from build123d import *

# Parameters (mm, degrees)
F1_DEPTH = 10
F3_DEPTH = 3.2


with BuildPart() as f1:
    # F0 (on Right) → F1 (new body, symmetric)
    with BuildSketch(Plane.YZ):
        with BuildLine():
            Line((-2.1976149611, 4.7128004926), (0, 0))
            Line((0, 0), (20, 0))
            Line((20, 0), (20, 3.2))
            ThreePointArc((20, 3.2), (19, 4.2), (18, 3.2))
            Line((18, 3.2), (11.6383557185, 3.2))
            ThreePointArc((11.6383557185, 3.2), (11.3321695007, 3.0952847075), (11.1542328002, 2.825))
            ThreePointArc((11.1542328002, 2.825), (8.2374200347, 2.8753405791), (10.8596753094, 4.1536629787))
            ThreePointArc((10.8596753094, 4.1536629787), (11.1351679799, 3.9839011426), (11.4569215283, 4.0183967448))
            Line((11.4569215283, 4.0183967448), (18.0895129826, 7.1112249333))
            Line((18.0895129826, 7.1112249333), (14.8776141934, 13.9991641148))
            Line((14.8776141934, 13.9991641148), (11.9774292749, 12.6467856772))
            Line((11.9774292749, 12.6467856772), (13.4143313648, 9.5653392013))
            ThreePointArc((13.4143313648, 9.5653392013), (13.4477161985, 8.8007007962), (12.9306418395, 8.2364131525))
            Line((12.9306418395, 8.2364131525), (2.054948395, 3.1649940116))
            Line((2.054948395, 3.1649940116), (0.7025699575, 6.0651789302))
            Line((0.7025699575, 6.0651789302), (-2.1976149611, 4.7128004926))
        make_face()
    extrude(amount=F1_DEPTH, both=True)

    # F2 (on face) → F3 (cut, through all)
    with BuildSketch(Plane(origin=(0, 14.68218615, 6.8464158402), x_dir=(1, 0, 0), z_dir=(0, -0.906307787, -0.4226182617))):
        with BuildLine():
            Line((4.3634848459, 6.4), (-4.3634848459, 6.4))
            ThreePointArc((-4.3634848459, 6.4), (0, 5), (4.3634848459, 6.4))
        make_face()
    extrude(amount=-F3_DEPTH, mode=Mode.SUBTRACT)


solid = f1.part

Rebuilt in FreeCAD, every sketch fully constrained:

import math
import FreeCAD as App
import Part
import Sketcher

V = App.Vector
Q = App.Units.Quantity

doc = App.newDocument("Part")
params = doc.addObject("Spreadsheet::Sheet", "Params")
for row, (alias, value) in enumerate([
    ("sketch1_radius", "1 mm"),
    ("sketch1_radius2", "0.5 mm"),
    ("sketch1_radius3", "1.5 mm"),
    ("sketch1_width", "20 mm"),
    ("sketch1_length", "12 mm"),
    ("pad1_length", "20 mm"),
    ("sketch2_radius", "7.5 mm"),
], start=1):
    params.set(f"A{row}", alias)
    params.set(f"B{row}", "=" + value)
    params.setAlias(f"B{row}", alias)

body = doc.addObject("PartDesign::Body", "Body")

sketch1 = body.newObject("Sketcher::SketchObject", "Sketch")
sketch1.AttachmentSupport = (doc.getObject("YZ_Plane"), [""])
sketch1.MapMode = "FlatFace"
sketch1.addGeometry([
    Part.LineSegment(V(-2.2, 4.7, 0), V(0, 0, 0)),
    Part.LineSegment(V(0, 0, 0), V(20, 0, 0)),
    Part.LineSegment(V(20, 0, 0), V(20, 3.2, 0)),
    Part.ArcOfCircle(Part.Circle(V(19, 3.2, 0), V(0, 0, 1), 1), math.radians(0), math.radians(180)),
    Part.LineSegment(V(18, 3.2, 0), V(11.6, 3.2, 0)),
    Part.ArcOfCircle(Part.Circle(V(11.6, 2.7, 0), V(0, 0, 1), 0.5), math.radians(90), math.radians(166)),
    Part.ArcOfCircle(Part.Circle(V(9.7, 3.2, 0), V(0, 0, 1), 1.5), math.radians(39), math.radians(346)),
    Part.ArcOfCircle(Part.Circle(V(11.2, 4.5, 0), V(0, 0, 1), 0.5), math.radians(-141), math.radians(-65)),
    Part.LineSegment(V(11.5, 4, 0), V(18.1, 7.1, 0)),
    Part.LineSegment(V(18.1, 7.1, 0), V(14.9, 14, 0)),
    Part.LineSegment(V(14.9, 14, 0), V(12, 12.6, 0)),
    Part.LineSegment(V(12, 12.6, 0), V(13.4, 9.6, 0)),
    Part.ArcOfCircle(Part.Circle(V(12.5, 9.1, 0), V(0, 0, 1), 1), math.radians(-65), math.radians(25)),
    Part.LineSegment(V(12.9, 8.2, 0), V(2.1, 3.2, 0)),
    Part.LineSegment(V(2.1, 3.2, 0), V(0.7, 6.1, 0)),
    Part.LineSegment(V(0.7, 6.1, 0), V(-2.2, 4.7, 0)),
], False)
sketch1.addConstraint([
    Sketcher.Constraint("Coincident", 0, 2, 1, 1),
    Sketcher.Constraint("Coincident", 1, 2, 2, 1),
    Sketcher.Constraint("Tangent", 2, 2, 3, 1),
    Sketcher.Constraint("Coincident", 3, 2, 4, 1),
    Sketcher.Constraint("Tangent", 4, 2, 5, 1),
    Sketcher.Constraint("Tangent", 5, 2, 6, 2),
    Sketcher.Constraint("Tangent", 6, 1, 7, 1),
    Sketcher.Constraint("Tangent", 7, 2, 8, 1),
    Sketcher.Constraint("Coincident", 8, 2, 9, 1),
    Sketcher.Constraint("Coincident", 9, 2, 10, 1),
    Sketcher.Constraint("Coincident", 10, 2, 11, 1),
    Sketcher.Constraint("Tangent", 11, 2, 12, 2),
    Sketcher.Constraint("Tangent", 12, 1, 13, 1),
    Sketcher.Constraint("Coincident", 13, 2, 14, 1),
    Sketcher.Constraint("Coincident", 14, 2, 15, 1),
    Sketcher.Constraint("Coincident", 15, 2, 0, 1),
    Sketcher.Constraint("Horizontal", 1),
    Sketcher.Constraint("Vertical", 2),
    Sketcher.Constraint("Horizontal", 4),
    Sketcher.Constraint("Coincident", 0, 2, -1, 1),
    Sketcher.Constraint("Equal", 5, 7),
    Sketcher.Constraint("Equal", 3, 12),
    Sketcher.Constraint("Perpendicular", 0, 8),
    Sketcher.Constraint("Perpendicular", 8, 9),
    Sketcher.Constraint("Perpendicular", 9, 10),
    Sketcher.Constraint("Perpendicular", 10, 11),
    Sketcher.Constraint("Perpendicular", 11, 13),
    Sketcher.Constraint("Perpendicular", 13, 14),
    Sketcher.Constraint("Perpendicular", 14, 15),
    Sketcher.Constraint("Horizontal", 3, 3, 6, 3),
    Sketcher.Constraint("Horizontal", 2, 2, 3, 2),
    Sketcher.Constraint("Equal", 10, 14),
    Sketcher.Constraint("Equal", 14, 15),
    Sketcher.Constraint("Radius", 3, Q("1 mm")),
    Sketcher.Constraint("Radius", 5, Q("0.5 mm")),
    Sketcher.Constraint("Radius", 6, Q("1.5 mm")),
    Sketcher.Constraint("DistanceX", 1, 1, 1, 2, Q("20 mm")),
    Sketcher.Constraint("Angle", 0, Q("-65 deg")),
    Sketcher.Constraint("Distance", 13, Q("12 mm")),
    Sketcher.Constraint("DistanceY", 2, 1, 2, 2, Q("3.2 mm")),
    Sketcher.Constraint("Distance", 0, Q("5.2 mm")),
    Sketcher.Constraint("Distance", 9, Q("7.6 mm")),
    Sketcher.Constraint("Distance", 10, Q("3.2 mm")),
    Sketcher.Constraint("Distance", 11, Q("3.4 mm")),
    Sketcher.Constraint("DistanceX", 7, 3, 9, 2, Q("3.632002 mm")),
])
sketch1.setExpression("Constraints[33]", "Params.sketch1_radius")
sketch1.setExpression("Constraints[34]", "Params.sketch1_radius2")
sketch1.setExpression("Constraints[35]", "Params.sketch1_radius3")
sketch1.setExpression("Constraints[36]", "Params.sketch1_width")
sketch1.setExpression("Constraints[38]", "Params.sketch1_length")
pad1 = body.newObject("PartDesign::Pad", "Pad")
pad1.Profile = sketch1
pad1.setExpression("Length", "Params.pad1_length")
pad1.Midplane = True

sketch2 = body.newObject("Sketcher::SketchObject", "Sketch001")
sketch2.Placement = App.Placement(V(0, 14.682186, 6.846416), App.Rotation(V(1, 0, 0), V(0, -0.422618262, 0.906307787), V(0, -0.906307787, -0.422618262), "ZXY"))
sketch2.addGeometry([
    Part.LineSegment(V(4, 6, 0), V(-4, 6, 0)),
    Part.ArcOfCircle(Part.Circle(V(0, 13, 0), V(0, 0, 1), 8), math.radians(-126), math.radians(-54)),
], False)
sketch2.addConstraint([
    Sketcher.Constraint("Coincident", 0, 1, 1, 2),
    Sketcher.Constraint("Coincident", 1, 1, 0, 2),
    Sketcher.Constraint("Horizontal", 0),
    Sketcher.Constraint("PointOnObject", 1, 3, -2),
    Sketcher.Constraint("Radius", 1, Q("7.5 mm")),
    Sketcher.Constraint("DistanceY", -1, 1, 1, 3, Q("12.5 mm")),
    Sketcher.Constraint("DistanceY", -1, 1, 0, 1, Q("6.4 mm")),
])
sketch2.setExpression("Constraints[4]", "Params.sketch2_radius")
pocket1 = body.newObject("PartDesign::Pocket", "Pocket")
pocket1.Profile = sketch2
pocket1.Type = "ThroughAll"

doc.recompute()
